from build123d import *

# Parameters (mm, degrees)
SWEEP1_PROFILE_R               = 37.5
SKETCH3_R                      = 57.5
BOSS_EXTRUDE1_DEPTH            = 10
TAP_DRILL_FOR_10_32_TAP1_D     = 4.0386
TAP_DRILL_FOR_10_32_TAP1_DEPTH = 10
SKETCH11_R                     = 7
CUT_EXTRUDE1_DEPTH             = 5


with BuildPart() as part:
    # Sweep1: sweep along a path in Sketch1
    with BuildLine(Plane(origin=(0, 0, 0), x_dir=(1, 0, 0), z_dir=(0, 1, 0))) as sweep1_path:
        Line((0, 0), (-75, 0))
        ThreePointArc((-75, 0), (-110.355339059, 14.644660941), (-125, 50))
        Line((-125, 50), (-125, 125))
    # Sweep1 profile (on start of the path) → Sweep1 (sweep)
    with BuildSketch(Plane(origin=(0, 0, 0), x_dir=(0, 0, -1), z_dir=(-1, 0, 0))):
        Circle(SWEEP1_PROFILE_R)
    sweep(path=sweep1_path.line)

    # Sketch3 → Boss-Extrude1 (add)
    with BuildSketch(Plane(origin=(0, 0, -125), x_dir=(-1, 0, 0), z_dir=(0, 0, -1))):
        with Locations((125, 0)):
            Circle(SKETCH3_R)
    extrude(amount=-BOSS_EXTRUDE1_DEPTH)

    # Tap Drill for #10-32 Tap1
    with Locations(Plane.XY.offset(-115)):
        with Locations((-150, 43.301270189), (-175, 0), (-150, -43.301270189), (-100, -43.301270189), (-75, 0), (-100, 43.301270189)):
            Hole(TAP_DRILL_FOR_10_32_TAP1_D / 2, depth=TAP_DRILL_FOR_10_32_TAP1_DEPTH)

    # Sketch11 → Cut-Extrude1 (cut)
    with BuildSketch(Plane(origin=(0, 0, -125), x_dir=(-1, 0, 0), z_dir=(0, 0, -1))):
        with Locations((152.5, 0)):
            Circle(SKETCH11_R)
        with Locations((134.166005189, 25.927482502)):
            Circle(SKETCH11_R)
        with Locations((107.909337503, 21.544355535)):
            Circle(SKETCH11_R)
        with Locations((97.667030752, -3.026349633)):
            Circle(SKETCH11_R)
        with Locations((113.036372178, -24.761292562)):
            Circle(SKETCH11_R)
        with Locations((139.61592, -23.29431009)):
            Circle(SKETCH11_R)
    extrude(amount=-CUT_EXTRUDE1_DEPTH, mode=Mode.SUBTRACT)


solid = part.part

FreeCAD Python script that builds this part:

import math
import FreeCAD as App
import Part
import Sketcher
from FreeCAD import Vector

doc = App.newDocument("Part")
params = doc.addObject("Spreadsheet::Sheet", "Params")
for row, (alias, value) in enumerate([
    ("sketch1_diameter", "75 mm"),
    ("sketch2_radius", "50 mm"),
    ("sketch2_width", "75 mm"),
    ("sketch3_diameter", "115 mm"),
    ("pad1_length", "10 mm"),
    ("hole_diameter", "4.0386 mm"),
    ("hole_depth", "10 mm"),
    ("sketch5_diameter", "14 mm"),
    ("pocket1_length", "5 mm"),
], start=1):
    params.set(f"A{row}", alias)
    params.set(f"B{row}", "=" + value)
    params.setAlias(f"B{row}", alias)

body = doc.addObject("PartDesign::Body", "Body")

# Sketch on YZ plane
sketch1 = body.newObject("Sketcher::SketchObject", "Sketch")
sketch1.AttachmentSupport = (doc.getObject("YZ_Plane"), [""])
sketch1.MapMode = "FlatFace"
sketch1.addGeometry(Part.Circle(Vector(0, 0, 0), Vector(0, 0, 1), 37.5), False)
sketch1.addConstraint(Sketcher.Constraint("Coincident", 0, 3, -1, 1))
sketch1.addConstraint(Sketcher.Constraint("Diameter", 0, 75.0))
sketch1.setExpression("Constraints[1]", "Params.sketch1_diameter")

# Sketch on XZ plane
sketch2 = body.newObject("Sketcher::SketchObject", "Sketch001")
sketch2.AttachmentSupport = (doc.getObject("XZ_Plane"), [""])
sketch2.MapMode = "FlatFace"
sketch2.addGeometry(Part.LineSegment(Vector(0, 0, 0), Vector(-75, 0, 0)), False)
sketch2.addGeometry(Part.ArcOfCircle(Part.Circle(Vector(-75, -50, 0), Vector(0, 0, 1), 50), math.radians(90), math.radians(180)), False)
sketch2.addGeometry(Part.LineSegment(Vector(-125, -50, 0), Vector(-125, -125, 0)), False)
sketch2.addConstraint(Sketcher.Constraint("Tangent", 0, 2, 1, 1))
sketch2.addConstraint(Sketcher.Constraint("Tangent", 1, 2, 2, 1))
sketch2.addConstraint(Sketcher.Constraint("Horizontal", 0))
sketch2.addConstraint(Sketcher.Constraint("Vertical", 2))
sketch2.addConstraint(Sketcher.Constraint("Coincident", 0, 1, -1, 1))
sketch2.addConstraint(Sketcher.Constraint("Equal", 0, 2))
sketch2.addConstraint(Sketcher.Constraint("Radius", 1, 50.0))
sketch2.addConstraint(Sketcher.Constraint("DistanceX", 0, 2, 0, 1, 75.0))
sketch2.setExpression("Constraints[6]", "Params.sketch2_radius")
sketch2.setExpression("Constraints[7]", "Params.sketch2_width")
doc.recompute()

additivepipe = body.newObject("PartDesign::AdditivePipe", "AdditivePipe")
additivepipe.Profile = sketch1
additivepipe.Spine = (sketch2, ["Edge1", "Edge2", "Edge3"])

# Sketch on XY plane
sketch3 = body.newObject("Sketcher::SketchObject", "Sketch002")
sketch3.AttachmentSupport = (doc.getObject("XY_Plane"), [""])
sketch3.MapMode = "FlatFace"
sketch3.AttachmentOffset = App.Placement(Vector(0, 0, -125), App.Rotation())
sketch3.addGeometry(Part.Circle(Vector(-125, 0, 0), Vector(0, 0, 1), 57.5), False)
sketch3.addConstraint(Sketcher.Constraint("PointOnObject", 0, 3, -1))
sketch3.addConstraint(Sketcher.Constraint("Diameter", 0, 115.0))
sketch3.addConstraint(Sketcher.Constraint("DistanceX", 0, 3, -1, 1, 125.0))
sketch3.setExpression("Constraints[1]", "Params.sketch3_diameter")
pad1 = body.newObject("PartDesign::Pad", "Pad")
pad1.Profile = sketch3
pad1.setExpression("Length", "Params.pad1_length")

# Sketch on XY plane
sketch4 = body.newObject("Sketcher::SketchObject", "Sketch003")
sketch4.AttachmentSupport = (doc.getObject("XY_Plane"), [""])
sketch4.MapMode = "FlatFace"
sketch4.AttachmentOffset = App.Placement(Vector(0, 0, -115), App.Rotation())
sketch4.addGeometry(Part.Circle(Vector(-150, 43.30127, 0), Vector(0, 0, 1), 2.0193), False)
sketch4.addGeometry(Part.Circle(Vector(-175, 0, 0), Vector(0, 0, 1), 2.0193), False)
sketch4.addGeometry(Part.Circle(Vector(-150, -43.30127, 0), Vector(0, 0, 1), 2.0193), False)
sketch4.addGeometry(Part.Circle(Vector(-100, -43.30127, 0), Vector(0, 0, 1), 2.0193), False)
sketch4.addGeometry(Part.Circle(Vector(-75, 0, 0), Vector(0, 0, 1), 2.0193), False)
sketch4.addGeometry(Part.Circle(Vector(-100, 43.30127, 0), Vector(0, 0, 1), 2.0193), False)
sketch4.addConstraint(Sketcher.Constraint("Equal", 0, 1))
sketch4.addConstraint(Sketcher.Constraint("Equal", 1, 2))
sketch4.addConstraint(Sketcher.Constraint("Equal", 2, 3))
sketch4.addConstraint(Sketcher.Constraint("Equal", 3, 4))
sketch4.addConstraint(Sketcher.Constraint("Equal", 4, 5))
sketch4.addConstraint(Sketcher.Constraint("Symmetric", 0, 3, 2, 3, -1))
sketch4.addConstraint(Sketcher.Constraint("Symmetric", 3, 3, 5, 3, -1))
sketch4.addConstraint(Sketcher.Constraint("PointOnObject", 1, 3, -1))
sketch4.addConstraint(Sketcher.Constraint("PointOnObject", 4, 3, -1))
sketch4.addConstraint(Sketcher.Constraint("Horizontal", 2, 3, 3, 3))
sketch4.addConstraint(Sketcher.Constraint("DistanceX", 0, 3, -1, 1, 150.0))
sketch4.addConstraint(Sketcher.Constraint("DistanceX", 1, 3, -1, 1, 175.0))
sketch4.addConstraint(Sketcher.Constraint("DistanceX", 3, 3, -1, 1, 100.0))
sketch4.addConstraint(Sketcher.Constraint("DistanceX", 4, 3, -1, 1, 75.0))
sketch4.addConstraint(Sketcher.Constraint("Diameter", 0, 4.0386))
sketch4.addConstraint(Sketcher.Constraint("DistanceY", -1, 1, 0, 3, 43.30127))
doc.recompute()
hole = body.newObject("PartDesign::Hole", "Hole")
hole.Profile = sketch4
hole.ThreadType = "None"
hole.setExpression("Diameter", "Params.hole_diameter")
hole.DepthType = "Dimension"
hole.setExpression("Depth", "Params.hole_depth")
hole.DrillPoint = "Flat"

# Sketch on XY plane
sketch5 = body.newObject("Sketcher::SketchObject", "Sketch004")
sketch5.AttachmentSupport = (doc.getObject("XY_Plane"), [""])
sketch5.MapMode = "FlatFace"
sketch5.AttachmentOffset = App.Placement(Vector(0, 0, -125), App.Rotation())
sketch5.addGeometry(Part.Circle(Vector(-152.5, 0, 0), Vector(0, 0, 1), 7), False)
sketch5.addGeometry(Part.Circle(Vector(-134.166005, 25.927483, 0), Vector(0, 0, 1), 7), False)
sketch5.addGeometry(Part.Circle(Vector(-107.909338, 21.544356, 0), Vector(0, 0, 1), 7), False)
sketch5.addGeometry(Part.Circle(Vector(-97.667031, -3.02635, 0), Vector(0, 0, 1), 7), False)
sketch5.addGeometry(Part.Circle(Vector(-113.036372, -24.761293, 0), Vector(0, 0, 1), 7), False)
sketch5.addGeometry(Part.Circle(Vector(-139.61592, -23.29431, 0), Vector(0, 0, 1), 7), False)
sketch5.addConstraint(Sketcher.Constraint("Equal", 0, 1))
sketch5.addConstraint(Sketcher.Constraint("Equal", 1, 2))
sketch5.addConstraint(Sketcher.Constraint("Equal", 2, 3))
sketch5.addConstraint(Sketcher.Constraint("Equal", 3, 4))
sketch5.addConstraint(Sketcher.Constraint("Equal", 4, 5))
sketch5.addConstraint(Sketcher.Constraint("PointOnObject", 0, 3, -1))
sketch5.addConstraint(Sketcher.Constraint("Diameter", 0, 14.0))
sketch5.addConstraint(Sketcher.Constraint("DistanceX", 0, 3, -1, 1, 152.5))
sketch5.addConstraint(Sketcher.Constraint("DistanceX", 3, 3, -1, 1, 97.667031))
sketch5.addConstraint(Sketcher.Constraint("DistanceY", 3, 3, -1, 1, 3.02635))
sketch5.addConstraint(Sketcher.Constraint("DistanceX", 5, 3, -1, 1, 139.61592))
sketch5.addConstraint(Sketcher.Constraint("DistanceY", 5, 3, -1, 1, 23.29431))
sketch5.addConstraint(Sketcher.Constraint("DistanceX", 4, 3, 3, 3, 15.369341))
sketch5.addConstraint(Sketcher.Constraint("DistanceY", 4, 3, 2, 3, 46.305648))
sketch5.addConstraint(Sketcher.Constraint("DistanceX", 1, 3, -1, 1, 134.166005))
sketch5.addConstraint(Sketcher.Constraint("DistanceY", -1, 1, 1, 3, 25.927483))
sketch5.addConstraint(Sketcher.Constraint("DistanceX", 2, 3, -1, 1, 107.909338))
sketch5.addConstraint(Sketcher.Constraint("DistanceY", -1, 1, 2, 3, 21.544356))
sketch5.setExpression("Constraints[6]", "Params.sketch5_diameter")
pocket1 = body.newObject("PartDesign::Pocket", "Pocket")
pocket1.Profile = sketch5
pocket1.setExpression("Length", "Params.pocket1_length")
pocket1.Reversed = True

doc.recompute()
